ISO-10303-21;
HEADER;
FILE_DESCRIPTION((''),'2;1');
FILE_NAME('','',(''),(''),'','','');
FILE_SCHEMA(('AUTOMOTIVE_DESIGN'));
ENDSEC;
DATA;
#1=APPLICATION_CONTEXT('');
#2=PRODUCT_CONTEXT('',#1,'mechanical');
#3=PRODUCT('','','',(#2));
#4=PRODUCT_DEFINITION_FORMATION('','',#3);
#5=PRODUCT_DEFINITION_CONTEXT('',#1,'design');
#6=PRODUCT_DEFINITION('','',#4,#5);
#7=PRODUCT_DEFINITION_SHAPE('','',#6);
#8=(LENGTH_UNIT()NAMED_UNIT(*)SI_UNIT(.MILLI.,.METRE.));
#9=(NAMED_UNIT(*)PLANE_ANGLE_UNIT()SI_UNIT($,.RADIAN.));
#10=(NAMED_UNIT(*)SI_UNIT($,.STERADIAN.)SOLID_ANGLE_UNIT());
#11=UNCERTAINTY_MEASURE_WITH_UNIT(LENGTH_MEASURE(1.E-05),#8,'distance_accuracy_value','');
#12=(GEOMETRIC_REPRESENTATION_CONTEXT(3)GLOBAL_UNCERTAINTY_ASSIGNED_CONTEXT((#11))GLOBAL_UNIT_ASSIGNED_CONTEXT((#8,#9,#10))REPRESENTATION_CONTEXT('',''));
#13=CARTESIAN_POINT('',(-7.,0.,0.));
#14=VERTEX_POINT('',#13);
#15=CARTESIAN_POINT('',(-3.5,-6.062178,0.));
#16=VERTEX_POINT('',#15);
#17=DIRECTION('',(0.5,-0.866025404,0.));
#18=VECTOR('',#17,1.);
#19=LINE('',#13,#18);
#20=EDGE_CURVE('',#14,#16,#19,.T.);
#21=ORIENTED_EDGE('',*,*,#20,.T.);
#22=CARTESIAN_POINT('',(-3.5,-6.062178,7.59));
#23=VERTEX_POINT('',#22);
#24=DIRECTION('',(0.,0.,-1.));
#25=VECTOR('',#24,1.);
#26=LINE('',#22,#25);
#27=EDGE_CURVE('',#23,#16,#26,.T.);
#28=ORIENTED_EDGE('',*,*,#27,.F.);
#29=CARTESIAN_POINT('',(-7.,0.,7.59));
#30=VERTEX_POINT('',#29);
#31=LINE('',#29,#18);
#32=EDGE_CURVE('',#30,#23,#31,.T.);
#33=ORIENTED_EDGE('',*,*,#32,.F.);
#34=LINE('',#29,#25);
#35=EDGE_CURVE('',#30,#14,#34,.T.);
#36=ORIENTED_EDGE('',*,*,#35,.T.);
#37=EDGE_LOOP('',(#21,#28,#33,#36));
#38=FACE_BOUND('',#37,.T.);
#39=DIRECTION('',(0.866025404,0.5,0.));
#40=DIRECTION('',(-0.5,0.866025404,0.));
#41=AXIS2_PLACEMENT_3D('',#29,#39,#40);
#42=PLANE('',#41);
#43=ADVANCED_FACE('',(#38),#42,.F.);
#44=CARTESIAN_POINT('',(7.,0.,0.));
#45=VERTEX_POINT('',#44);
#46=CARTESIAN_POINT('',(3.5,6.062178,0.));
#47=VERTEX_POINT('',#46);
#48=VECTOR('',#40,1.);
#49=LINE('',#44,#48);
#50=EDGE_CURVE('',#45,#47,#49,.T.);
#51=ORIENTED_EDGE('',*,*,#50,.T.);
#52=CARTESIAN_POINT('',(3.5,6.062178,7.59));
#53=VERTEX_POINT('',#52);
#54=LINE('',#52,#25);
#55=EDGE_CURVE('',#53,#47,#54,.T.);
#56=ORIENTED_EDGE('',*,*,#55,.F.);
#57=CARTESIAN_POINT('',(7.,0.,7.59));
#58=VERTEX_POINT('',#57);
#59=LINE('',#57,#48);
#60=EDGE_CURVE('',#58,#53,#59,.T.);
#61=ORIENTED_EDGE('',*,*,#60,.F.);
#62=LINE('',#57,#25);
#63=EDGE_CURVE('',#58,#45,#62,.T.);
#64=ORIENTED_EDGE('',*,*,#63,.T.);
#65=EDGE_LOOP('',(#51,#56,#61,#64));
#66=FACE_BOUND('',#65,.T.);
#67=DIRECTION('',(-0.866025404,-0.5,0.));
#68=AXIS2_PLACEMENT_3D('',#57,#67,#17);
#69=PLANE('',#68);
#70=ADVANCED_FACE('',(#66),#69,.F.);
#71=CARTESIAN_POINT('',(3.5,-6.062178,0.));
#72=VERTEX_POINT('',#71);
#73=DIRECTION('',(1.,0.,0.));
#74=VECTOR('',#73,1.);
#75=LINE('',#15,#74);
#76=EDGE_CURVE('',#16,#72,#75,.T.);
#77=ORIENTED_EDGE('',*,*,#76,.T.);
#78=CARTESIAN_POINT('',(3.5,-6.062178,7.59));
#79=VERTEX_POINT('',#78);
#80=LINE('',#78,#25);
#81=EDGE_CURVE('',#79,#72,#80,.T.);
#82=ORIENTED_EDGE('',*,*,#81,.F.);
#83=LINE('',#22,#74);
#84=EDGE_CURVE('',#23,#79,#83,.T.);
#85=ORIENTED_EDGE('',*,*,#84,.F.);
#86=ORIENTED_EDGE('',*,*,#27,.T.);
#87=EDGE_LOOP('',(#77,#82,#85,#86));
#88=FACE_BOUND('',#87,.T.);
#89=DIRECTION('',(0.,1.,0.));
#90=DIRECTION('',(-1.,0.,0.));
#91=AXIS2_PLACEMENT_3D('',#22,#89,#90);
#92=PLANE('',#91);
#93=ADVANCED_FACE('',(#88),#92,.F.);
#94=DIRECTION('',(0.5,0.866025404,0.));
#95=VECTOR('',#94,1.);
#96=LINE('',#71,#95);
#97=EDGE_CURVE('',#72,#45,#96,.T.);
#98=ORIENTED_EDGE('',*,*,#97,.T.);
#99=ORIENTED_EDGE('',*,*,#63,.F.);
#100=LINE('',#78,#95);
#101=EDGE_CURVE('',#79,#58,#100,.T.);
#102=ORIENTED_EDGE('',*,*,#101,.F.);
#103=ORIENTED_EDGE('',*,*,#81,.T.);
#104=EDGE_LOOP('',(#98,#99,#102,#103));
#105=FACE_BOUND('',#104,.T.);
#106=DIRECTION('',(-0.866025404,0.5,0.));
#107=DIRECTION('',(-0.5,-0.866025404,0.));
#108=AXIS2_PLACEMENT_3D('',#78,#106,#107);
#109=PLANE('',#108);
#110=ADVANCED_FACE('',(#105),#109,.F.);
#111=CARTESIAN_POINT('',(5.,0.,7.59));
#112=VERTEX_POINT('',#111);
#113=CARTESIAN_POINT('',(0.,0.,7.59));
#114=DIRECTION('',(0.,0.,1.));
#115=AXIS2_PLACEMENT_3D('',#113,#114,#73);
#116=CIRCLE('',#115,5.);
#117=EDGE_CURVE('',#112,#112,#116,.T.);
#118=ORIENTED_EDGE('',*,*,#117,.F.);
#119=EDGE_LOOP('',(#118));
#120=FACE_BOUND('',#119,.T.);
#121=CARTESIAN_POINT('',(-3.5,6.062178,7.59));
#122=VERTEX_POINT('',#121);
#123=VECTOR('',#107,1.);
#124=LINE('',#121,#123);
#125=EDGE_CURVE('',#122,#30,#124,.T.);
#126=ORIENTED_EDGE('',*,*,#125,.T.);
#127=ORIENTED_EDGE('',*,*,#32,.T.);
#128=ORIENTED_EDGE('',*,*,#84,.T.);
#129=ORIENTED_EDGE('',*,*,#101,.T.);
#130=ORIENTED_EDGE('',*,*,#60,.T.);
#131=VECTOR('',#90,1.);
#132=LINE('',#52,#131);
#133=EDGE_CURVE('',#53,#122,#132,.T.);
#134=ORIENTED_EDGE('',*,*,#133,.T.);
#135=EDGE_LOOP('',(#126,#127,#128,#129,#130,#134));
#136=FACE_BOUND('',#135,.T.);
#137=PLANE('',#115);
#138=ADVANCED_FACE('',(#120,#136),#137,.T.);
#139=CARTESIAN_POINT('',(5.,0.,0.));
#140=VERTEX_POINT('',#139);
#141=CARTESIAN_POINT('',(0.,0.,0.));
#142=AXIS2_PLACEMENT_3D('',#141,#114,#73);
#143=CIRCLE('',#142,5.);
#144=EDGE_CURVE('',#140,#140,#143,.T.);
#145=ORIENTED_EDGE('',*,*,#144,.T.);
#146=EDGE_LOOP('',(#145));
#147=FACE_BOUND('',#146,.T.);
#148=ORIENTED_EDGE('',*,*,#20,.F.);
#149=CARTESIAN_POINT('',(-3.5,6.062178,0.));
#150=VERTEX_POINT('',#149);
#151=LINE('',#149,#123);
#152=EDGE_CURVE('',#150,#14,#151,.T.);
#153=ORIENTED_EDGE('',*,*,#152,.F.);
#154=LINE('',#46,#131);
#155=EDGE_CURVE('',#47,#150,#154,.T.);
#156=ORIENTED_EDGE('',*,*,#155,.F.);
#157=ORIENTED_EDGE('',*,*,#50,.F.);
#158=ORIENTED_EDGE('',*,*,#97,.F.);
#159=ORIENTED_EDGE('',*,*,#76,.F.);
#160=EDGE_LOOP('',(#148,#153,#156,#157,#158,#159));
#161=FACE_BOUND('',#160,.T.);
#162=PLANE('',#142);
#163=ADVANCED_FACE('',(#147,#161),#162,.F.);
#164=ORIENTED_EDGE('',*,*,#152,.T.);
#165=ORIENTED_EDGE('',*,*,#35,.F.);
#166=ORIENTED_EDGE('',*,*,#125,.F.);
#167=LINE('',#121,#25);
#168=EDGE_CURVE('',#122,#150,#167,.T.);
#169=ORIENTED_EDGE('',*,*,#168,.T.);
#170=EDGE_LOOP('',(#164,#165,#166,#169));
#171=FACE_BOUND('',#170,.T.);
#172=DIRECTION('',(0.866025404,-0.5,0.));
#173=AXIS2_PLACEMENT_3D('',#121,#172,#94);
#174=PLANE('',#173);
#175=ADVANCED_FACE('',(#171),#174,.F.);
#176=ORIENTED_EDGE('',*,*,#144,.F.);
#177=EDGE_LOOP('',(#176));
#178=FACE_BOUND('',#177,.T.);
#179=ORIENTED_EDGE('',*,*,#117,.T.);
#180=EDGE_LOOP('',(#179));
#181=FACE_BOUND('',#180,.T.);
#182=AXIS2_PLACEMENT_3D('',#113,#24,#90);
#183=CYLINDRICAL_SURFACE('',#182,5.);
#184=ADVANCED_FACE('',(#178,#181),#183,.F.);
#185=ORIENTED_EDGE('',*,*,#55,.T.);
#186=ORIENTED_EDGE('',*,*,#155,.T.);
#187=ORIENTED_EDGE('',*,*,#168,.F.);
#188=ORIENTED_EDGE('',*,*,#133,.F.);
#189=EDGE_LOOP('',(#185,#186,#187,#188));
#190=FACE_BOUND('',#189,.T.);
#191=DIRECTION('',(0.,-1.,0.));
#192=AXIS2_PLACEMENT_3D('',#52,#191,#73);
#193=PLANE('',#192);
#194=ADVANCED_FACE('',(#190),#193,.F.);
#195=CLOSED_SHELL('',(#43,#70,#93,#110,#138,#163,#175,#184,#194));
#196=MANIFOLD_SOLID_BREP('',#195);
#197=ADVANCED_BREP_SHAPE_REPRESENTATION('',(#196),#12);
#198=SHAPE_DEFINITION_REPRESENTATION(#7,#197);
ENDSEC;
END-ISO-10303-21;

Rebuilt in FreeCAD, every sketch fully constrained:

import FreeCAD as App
import Part
import Sketcher

V = App.Vector
Q = App.Units.Quantity


def add_polygon(sketch, points):
    """Adds a closed chain of lines whose ends are joined by coincident constraints."""
    first, n = sketch.GeometryCount, len(points)
    for a, b in zip(points, points[1:] + points[:1]):
        sketch.addGeometry(Part.LineSegment(App.Vector(*a, 0), App.Vector(*b, 0)), False)
    for i in range(n):
        sketch.addConstraint(Sketcher.Constraint("Coincident", first + i, 2, first + (i + 1) % n, 1))

doc = App.newDocument("Part")
body = doc.addObject("PartDesign::Body", "Body")

# Sketch on XY plane
sketch1 = doc.addObject("Sketcher::SketchObject", "Sketch")
body.addObject(sketch1)
sketch1.AttachmentSupport = (doc.XY_Plane, [""])
sketch1.MapMode = "FlatFace"
add_polygon(sketch1, [(7, 0), (4, 6), (-4, 6), (-7, 0), (-4, -6), (4, -6)])  # lines 0-5
sketch1.addGeometry(Part.Circle(V(0, 0, 0), V(0, 0, 1), 5), False)  # 6
sketch1.addConstraint(Sketcher.Constraint("Horizontal", 1))
sketch1.addConstraint(Sketcher.Constraint("Horizontal", 4))
sketch1.addConstraint(Sketcher.Constraint("Coincident", 6, 3, -1, 1))
sketch1.addConstraint(Sketcher.Constraint("Symmetric", 0, 2, 3, 2, -1, 1))
sketch1.addConstraint(Sketcher.Constraint("Symmetric", 2, 2, 5, 2, -1, 1))
sketch1.addConstraint(Sketcher.Constraint("PointOnObject", 2, 2, -1))
sketch1.addConstraint(Sketcher.Constraint("Parallel", 2, 5))
sketch1.addConstraint(Sketcher.Constraint("Vertical", 1, 2, 3, 2))
sketch1.addConstraint(Sketcher.Constraint("Diameter", 6, 10.0))
sketch1.addConstraint(Sketcher.Constraint("DistanceX", 1, 2, 1, 1, 7.0))
sketch1.addConstraint(Sketcher.Constraint("Angle", 0, Q("120 deg")))
sketch1.addConstraint(Sketcher.Constraint("Distance", 0, 7.0))
pad1 = doc.addObject("PartDesign::Pad", "Pad")
body.addObject(pad1)
pad1.Profile = sketch1
pad1.Length = 7.59

doc.recompute()
